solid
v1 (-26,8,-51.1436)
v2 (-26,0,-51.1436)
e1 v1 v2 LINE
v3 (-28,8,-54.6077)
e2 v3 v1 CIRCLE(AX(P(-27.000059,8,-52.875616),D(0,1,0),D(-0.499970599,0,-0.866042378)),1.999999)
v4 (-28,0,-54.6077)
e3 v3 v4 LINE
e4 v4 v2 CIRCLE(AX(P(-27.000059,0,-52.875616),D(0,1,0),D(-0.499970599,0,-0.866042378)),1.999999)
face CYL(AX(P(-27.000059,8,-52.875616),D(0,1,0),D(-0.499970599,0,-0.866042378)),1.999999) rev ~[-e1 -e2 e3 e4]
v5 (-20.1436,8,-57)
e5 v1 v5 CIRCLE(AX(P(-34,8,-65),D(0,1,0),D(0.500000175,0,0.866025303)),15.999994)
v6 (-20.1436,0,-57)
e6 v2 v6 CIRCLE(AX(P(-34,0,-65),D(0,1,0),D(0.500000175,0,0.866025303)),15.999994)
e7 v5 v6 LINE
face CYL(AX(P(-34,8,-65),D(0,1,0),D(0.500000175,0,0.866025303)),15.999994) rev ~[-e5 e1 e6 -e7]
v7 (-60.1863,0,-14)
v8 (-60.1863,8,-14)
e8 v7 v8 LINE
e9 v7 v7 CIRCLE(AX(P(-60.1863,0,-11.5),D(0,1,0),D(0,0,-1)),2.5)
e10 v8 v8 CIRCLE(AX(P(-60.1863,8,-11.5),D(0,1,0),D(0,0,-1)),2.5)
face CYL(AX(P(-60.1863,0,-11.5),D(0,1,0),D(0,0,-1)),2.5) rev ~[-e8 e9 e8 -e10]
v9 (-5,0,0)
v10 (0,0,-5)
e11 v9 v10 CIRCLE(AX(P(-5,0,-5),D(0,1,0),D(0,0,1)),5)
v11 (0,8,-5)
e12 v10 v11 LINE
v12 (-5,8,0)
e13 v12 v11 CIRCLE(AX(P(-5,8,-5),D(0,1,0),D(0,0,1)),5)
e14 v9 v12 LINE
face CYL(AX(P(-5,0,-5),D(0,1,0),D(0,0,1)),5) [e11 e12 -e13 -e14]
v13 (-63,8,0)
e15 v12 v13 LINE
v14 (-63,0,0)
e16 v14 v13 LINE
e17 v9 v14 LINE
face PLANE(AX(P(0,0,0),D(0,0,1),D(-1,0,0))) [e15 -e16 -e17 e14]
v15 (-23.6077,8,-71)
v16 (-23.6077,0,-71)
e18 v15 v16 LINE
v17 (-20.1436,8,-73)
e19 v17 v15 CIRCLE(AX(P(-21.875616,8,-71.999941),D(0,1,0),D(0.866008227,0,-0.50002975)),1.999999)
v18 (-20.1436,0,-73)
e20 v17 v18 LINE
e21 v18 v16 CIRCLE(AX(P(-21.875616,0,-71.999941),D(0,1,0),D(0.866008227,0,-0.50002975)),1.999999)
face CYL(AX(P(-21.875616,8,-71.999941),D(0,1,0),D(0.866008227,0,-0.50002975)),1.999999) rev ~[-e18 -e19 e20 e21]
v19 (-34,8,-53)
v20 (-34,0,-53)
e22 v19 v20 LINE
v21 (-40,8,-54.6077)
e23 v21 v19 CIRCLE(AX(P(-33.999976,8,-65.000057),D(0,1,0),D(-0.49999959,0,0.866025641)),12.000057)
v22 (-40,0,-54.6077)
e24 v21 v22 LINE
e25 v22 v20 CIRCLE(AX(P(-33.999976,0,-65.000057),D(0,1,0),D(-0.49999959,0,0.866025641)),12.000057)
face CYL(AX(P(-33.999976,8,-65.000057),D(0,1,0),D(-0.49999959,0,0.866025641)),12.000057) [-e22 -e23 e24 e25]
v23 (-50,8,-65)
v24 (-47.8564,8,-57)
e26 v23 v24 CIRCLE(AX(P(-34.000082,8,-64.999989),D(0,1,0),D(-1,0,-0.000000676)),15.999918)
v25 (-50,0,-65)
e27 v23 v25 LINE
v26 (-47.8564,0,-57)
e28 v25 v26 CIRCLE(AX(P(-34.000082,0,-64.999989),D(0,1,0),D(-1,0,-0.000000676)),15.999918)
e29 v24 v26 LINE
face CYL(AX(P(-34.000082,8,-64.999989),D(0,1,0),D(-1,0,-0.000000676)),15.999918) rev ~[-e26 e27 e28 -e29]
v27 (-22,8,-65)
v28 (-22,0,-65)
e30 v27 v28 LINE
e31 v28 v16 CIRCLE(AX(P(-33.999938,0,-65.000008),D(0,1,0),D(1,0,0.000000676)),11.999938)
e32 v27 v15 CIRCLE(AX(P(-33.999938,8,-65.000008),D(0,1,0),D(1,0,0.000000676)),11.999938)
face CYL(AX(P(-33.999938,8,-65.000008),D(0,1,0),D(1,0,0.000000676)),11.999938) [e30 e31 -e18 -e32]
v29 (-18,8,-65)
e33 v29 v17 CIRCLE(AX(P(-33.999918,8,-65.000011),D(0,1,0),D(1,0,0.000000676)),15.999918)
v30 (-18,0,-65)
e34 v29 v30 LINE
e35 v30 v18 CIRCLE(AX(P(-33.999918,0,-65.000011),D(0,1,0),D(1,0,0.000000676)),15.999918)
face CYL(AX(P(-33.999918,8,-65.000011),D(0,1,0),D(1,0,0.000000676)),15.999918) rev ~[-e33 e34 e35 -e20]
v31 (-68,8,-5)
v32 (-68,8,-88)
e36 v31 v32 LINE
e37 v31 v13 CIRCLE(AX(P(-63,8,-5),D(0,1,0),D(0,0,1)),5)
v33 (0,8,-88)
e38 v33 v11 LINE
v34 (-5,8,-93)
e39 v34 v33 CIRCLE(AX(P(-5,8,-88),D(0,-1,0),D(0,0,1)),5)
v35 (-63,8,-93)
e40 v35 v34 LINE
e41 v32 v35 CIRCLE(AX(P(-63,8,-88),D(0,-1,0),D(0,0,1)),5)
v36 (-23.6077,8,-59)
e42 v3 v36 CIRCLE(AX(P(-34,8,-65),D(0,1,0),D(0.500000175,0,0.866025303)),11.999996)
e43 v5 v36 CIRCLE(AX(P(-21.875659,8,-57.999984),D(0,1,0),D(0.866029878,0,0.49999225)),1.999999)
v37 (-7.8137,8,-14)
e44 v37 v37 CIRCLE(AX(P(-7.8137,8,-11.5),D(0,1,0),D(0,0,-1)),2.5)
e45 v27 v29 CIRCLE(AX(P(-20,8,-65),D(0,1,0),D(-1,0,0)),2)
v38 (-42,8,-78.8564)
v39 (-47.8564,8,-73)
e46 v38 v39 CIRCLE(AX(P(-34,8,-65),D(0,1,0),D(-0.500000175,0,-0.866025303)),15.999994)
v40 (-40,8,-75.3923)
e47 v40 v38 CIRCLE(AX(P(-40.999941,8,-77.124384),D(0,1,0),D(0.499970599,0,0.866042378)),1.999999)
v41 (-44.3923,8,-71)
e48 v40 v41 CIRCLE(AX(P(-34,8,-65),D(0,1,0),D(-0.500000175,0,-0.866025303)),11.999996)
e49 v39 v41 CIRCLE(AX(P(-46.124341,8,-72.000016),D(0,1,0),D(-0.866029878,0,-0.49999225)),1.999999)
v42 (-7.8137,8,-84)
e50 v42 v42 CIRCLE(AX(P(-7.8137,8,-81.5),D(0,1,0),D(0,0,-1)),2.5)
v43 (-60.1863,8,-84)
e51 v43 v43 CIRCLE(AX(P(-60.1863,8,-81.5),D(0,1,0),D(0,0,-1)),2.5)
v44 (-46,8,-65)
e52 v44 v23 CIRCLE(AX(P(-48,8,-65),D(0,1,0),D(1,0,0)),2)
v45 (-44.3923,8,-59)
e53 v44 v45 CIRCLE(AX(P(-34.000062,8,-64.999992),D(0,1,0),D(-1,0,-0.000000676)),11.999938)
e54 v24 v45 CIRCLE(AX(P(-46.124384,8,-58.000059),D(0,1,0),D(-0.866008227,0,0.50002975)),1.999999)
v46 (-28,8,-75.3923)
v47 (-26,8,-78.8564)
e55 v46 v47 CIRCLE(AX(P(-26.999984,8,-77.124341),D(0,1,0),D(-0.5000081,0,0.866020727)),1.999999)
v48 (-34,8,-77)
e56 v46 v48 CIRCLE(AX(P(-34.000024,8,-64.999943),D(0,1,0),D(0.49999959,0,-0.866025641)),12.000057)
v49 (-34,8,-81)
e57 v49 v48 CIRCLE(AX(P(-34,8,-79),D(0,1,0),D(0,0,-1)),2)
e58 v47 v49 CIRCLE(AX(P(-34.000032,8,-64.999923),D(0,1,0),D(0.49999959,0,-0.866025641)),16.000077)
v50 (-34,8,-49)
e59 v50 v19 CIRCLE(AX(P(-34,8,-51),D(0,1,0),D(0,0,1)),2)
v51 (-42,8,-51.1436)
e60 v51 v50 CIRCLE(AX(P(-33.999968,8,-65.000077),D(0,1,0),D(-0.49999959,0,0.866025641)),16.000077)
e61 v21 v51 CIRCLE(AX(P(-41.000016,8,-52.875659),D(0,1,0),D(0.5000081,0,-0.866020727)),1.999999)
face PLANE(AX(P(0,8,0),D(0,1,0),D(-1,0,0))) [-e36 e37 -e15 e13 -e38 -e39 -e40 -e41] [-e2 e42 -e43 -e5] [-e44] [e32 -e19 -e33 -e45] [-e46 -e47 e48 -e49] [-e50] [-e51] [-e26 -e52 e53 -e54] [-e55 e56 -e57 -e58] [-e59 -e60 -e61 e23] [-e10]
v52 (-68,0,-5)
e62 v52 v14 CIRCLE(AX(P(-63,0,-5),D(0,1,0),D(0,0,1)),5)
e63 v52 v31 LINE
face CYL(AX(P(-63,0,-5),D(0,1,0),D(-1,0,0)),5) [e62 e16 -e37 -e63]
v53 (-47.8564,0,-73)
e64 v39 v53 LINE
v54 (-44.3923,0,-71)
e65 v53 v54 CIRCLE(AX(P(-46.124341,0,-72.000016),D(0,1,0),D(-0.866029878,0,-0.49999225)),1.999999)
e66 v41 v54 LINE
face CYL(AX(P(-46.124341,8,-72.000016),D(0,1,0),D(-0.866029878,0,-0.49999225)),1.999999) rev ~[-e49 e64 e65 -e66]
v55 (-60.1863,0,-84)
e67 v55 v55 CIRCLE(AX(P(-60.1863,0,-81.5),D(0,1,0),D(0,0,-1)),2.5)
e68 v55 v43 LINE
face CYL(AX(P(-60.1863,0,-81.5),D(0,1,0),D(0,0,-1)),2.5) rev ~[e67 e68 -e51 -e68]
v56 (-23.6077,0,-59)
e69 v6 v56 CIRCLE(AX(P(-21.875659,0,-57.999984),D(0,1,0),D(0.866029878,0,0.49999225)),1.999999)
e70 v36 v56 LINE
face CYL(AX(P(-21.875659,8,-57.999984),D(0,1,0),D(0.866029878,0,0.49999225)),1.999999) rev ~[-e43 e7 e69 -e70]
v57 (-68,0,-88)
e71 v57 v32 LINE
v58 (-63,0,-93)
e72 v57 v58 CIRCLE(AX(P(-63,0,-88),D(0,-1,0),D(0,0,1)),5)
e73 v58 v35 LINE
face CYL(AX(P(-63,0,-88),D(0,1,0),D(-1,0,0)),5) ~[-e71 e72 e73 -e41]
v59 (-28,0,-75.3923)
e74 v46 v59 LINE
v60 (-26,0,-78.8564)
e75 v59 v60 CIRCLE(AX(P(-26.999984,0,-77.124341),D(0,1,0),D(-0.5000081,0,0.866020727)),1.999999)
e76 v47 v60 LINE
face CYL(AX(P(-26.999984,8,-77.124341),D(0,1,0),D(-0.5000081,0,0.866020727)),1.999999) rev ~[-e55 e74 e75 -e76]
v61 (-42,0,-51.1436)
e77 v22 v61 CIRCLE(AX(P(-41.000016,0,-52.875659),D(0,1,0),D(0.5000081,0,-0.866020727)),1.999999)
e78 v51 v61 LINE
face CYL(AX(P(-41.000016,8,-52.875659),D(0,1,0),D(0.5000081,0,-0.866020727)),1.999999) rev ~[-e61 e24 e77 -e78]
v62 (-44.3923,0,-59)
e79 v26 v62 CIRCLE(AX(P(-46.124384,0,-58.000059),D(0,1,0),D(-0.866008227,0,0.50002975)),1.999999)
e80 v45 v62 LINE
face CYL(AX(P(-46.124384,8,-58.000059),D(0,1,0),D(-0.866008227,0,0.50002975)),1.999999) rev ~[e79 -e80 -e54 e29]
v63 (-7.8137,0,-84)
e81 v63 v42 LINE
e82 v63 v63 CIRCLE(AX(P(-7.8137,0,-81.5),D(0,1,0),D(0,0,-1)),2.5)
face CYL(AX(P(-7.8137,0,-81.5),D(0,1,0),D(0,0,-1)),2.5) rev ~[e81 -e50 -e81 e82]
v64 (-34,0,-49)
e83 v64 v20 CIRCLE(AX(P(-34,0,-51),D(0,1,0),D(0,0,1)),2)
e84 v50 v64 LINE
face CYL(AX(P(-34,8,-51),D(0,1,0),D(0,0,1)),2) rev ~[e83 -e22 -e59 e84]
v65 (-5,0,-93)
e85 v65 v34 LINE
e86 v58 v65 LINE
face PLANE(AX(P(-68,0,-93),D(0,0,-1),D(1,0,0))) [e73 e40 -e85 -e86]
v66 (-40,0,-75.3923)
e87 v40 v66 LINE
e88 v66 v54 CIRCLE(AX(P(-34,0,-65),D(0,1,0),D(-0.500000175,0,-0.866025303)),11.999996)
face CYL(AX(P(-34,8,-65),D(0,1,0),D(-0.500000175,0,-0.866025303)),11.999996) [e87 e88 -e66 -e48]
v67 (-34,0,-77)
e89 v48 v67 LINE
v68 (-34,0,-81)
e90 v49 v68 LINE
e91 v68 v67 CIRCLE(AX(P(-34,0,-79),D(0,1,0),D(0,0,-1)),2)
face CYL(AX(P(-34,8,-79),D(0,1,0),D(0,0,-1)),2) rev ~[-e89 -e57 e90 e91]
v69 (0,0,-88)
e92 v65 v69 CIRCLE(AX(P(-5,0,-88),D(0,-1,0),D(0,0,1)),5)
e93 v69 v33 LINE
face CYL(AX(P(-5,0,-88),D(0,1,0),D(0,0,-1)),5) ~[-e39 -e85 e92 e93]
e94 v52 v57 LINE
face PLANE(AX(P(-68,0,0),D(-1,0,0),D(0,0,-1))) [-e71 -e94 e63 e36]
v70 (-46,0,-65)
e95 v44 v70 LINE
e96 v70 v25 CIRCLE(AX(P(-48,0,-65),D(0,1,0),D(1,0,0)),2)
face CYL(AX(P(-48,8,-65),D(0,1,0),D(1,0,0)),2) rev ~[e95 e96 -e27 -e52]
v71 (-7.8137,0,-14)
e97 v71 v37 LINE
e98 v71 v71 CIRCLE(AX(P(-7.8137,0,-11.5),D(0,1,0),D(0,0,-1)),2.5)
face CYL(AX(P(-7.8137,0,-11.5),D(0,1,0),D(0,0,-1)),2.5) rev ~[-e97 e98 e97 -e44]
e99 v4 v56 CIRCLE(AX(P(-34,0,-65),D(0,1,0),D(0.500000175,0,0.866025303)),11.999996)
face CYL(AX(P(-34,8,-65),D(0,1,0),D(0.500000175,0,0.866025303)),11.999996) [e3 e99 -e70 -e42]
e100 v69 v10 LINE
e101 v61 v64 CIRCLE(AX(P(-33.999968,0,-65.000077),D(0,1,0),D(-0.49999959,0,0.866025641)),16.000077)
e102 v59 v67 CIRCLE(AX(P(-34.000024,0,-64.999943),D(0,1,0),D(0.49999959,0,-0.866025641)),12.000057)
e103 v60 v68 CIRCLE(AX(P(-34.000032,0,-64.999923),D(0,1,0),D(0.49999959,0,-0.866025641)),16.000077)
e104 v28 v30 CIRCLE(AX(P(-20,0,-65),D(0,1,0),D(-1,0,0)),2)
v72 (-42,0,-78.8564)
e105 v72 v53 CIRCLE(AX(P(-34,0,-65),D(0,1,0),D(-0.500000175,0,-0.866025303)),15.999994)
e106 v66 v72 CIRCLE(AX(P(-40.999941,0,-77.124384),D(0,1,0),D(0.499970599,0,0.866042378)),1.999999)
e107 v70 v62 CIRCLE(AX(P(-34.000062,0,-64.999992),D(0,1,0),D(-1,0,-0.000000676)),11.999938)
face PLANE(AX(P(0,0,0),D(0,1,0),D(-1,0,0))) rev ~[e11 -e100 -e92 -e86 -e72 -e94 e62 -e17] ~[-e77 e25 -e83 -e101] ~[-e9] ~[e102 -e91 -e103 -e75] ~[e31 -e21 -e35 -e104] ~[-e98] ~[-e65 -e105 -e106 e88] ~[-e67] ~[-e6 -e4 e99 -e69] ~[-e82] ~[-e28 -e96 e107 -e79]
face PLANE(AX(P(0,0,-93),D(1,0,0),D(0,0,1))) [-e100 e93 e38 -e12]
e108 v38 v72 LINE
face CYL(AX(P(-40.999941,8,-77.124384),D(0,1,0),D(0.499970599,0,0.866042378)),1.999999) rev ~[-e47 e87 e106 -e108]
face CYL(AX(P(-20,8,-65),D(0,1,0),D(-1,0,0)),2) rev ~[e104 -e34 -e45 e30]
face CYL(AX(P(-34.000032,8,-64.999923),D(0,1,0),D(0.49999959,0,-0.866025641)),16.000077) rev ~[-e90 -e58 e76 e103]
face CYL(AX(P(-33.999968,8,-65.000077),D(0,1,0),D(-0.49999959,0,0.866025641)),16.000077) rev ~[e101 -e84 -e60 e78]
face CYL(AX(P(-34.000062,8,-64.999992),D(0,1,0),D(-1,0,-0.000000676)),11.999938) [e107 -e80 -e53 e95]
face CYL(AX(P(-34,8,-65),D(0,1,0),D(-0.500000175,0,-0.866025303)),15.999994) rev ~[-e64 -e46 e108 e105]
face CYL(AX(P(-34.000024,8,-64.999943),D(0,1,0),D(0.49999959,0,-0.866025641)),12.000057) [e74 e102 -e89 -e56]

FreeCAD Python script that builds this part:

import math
import FreeCAD as App
import Part
import Sketcher

V = App.Vector
Q = App.Units.Quantity


def edges_at(feature, points):
    """Names of the edges that pass closest to the given points."""
    edges = feature.Shape.Edges
    near = lambda p: min(range(len(edges)), key=lambda i: edges[i].distToShape(Part.Vertex(*p))[0])
    return sorted({f"Edge{near(p) + 1}" for p in points})

doc = App.newDocument("Part")
body = doc.addObject("PartDesign::Body", "Body")

# Sketch on XZ plane
sketch1 = body.newObject("Sketcher::SketchObject", "Sketch")
sketch1.AttachmentSupport = (doc.getObject("XZ_Plane"), [""])
sketch1.MapMode = "FlatFace"
sketch1.addGeometry(Part.LineSegment(V(-68, 0, 0), V(0, 0, 0)), False)
sketch1.addGeometry(Part.LineSegment(V(0, 0, 0), V(0, -93, 0)), False)
sketch1.addGeometry(Part.LineSegment(V(0, -93, 0), V(-68, -93, 0)), False)
sketch1.addGeometry(Part.LineSegment(V(-68, -93, 0), V(-68, 0, 0)), False)
sketch1.addConstraint(Sketcher.Constraint("Coincident", 0, 2, 1, 1))
sketch1.addConstraint(Sketcher.Constraint("Coincident", 1, 2, 2, 1))
sketch1.addConstraint(Sketcher.Constraint("Coincident", 2, 2, 3, 1))
sketch1.addConstraint(Sketcher.Constraint("Coincident", 3, 2, 0, 1))
sketch1.addConstraint(Sketcher.Constraint("Horizontal", 0))
sketch1.addConstraint(Sketcher.Constraint("Vertical", 1))
sketch1.addConstraint(Sketcher.Constraint("Horizontal", 2))
sketch1.addConstraint(Sketcher.Constraint("Vertical", 3))
sketch1.addConstraint(Sketcher.Constraint("Coincident", 0, 2, -1, 1))
sketch1.addConstraint(Sketcher.Constraint("DistanceX", 0, 1, 0, 2, Q("68 mm")))
sketch1.addConstraint(Sketcher.Constraint("DistanceY", 1, 2, 1, 1, Q("93 mm")))
pad1 = body.newObject("PartDesign::Pad", "Pad")
pad1.Profile = sketch1
pad1.Length = 8
pad1.Reversed = True
doc.recompute()

fillet = body.newObject("PartDesign::Fillet", "Fillet")
fillet.Base = (pad1, edges_at(pad1, [(0, 4, -93), (-68, 4, -93)]))
fillet.Radius = 5
doc.recompute()

fillet2 = body.newObject("PartDesign::Fillet", "Fillet001")
fillet2.Base = (fillet, edges_at(fillet, [(-68, 4, 0), (0, 4, 0)]))
fillet2.Radius = 5

# Sketch on XZ plane
sketch2 = body.newObject("Sketcher::SketchObject", "Sketch001")
sketch2.AttachmentSupport = (doc.getObject("XZ_Plane"), [""])
sketch2.MapMode = "FlatFace"
sketch2.addGeometry(Part.Circle(V(-7.8, -81.5, 0), V(0, 0, 1), 2.5), False)
sketch2.addGeometry(Part.Circle(V(-60.2, -81.5, 0), V(0, 0, 1), 2.5), False)
sketch2.addGeometry(Part.Circle(V(-60.2, -11.5, 0), V(0, 0, 1), 2.5), False)
sketch2.addGeometry(Part.Circle(V(-7.8, -11.5, 0), V(0, 0, 1), 2.5), False)
sketch2.addConstraint(Sketcher.Constraint("Equal", 0, 1))
sketch2.addConstraint(Sketcher.Constraint("Equal", 1, 2))
sketch2.addConstraint(Sketcher.Constraint("Equal", 2, 3))
sketch2.addConstraint(Sketcher.Constraint("Horizontal", 0, 3, 1, 3))
sketch2.addConstraint(Sketcher.Constraint("Horizontal", 2, 3, 3, 3))
sketch2.addConstraint(Sketcher.Constraint("Vertical", 1, 3, 2, 3))
sketch2.addConstraint(Sketcher.Constraint("Vertical", 0, 3, 3, 3))
sketch2.addConstraint(Sketcher.Constraint("Diameter", 0, Q("5 mm")))
sketch2.addConstraint(Sketcher.Constraint("DistanceY", 1, 3, 2, 3, Q("70 mm")))
sketch2.addConstraint(Sketcher.Constraint("DistanceY", 0, 3, -1, 1, Q("81.5 mm")))
sketch2.addConstraint(Sketcher.Constraint("DistanceX", 0, 3, -1, 1, Q("7.8137 mm")))
sketch2.addConstraint(Sketcher.Constraint("DistanceX", 1, 3, -1, 1, Q("60.1863 mm")))
doc.recompute()
hole = body.newObject("PartDesign::Hole", "Hole")
hole.Profile = sketch2
hole.ThreadType = "None"
hole.Diameter = 5
hole.DepthType = "ThroughAll"

# Sketch on XZ plane
sketch3 = body.newObject("Sketcher::SketchObject", "Sketch002")
sketch3.AttachmentSupport = (doc.getObject("XZ_Plane"), [""])
sketch3.MapMode = "FlatFace"
sketch3.AttachmentOffset = App.Placement(V(0, 0, -8), App.Rotation())
sketch3.addGeometry(Part.ArcOfCircle(Part.Circle(V(-27, -77.1, 0), V(0, 0, 1), 2), math.radians(-60), math.radians(120)), False)
sketch3.addGeometry(Part.ArcOfCircle(Part.Circle(V(-34, -65, 0), V(0, 0, 1), 16), math.radians(-90), math.radians(-60)), False)
sketch3.addGeometry(Part.ArcOfCircle(Part.Circle(V(-34, -79, 0), V(0, 0, 1), 2), math.radians(90), math.radians(270)), False)
sketch3.addGeometry(Part.ArcOfCircle(Part.Circle(V(-34, -65, 0), V(0, 0, 1), 12), math.radians(-90), math.radians(-60)), False)
sketch3.addGeometry(Part.ArcOfCircle(Part.Circle(V(-41, -77.1, 0), V(0, 0, 1), 2), math.radians(-120), math.radians(60)), False)
sketch3.addGeometry(Part.ArcOfCircle(Part.Circle(V(-34, -65, 0), V(0, 0, 1), 16), math.radians(-150), math.radians(-120)), False)
sketch3.addGeometry(Part.ArcOfCircle(Part.Circle(V(-46.1, -72, 0), V(0, 0, 1), 2), math.radians(30), math.radians(210)), False)
sketch3.addGeometry(Part.ArcOfCircle(Part.Circle(V(-34, -65, 0), V(0, 0, 1), 12), math.radians(-150), math.radians(-120)), False)
sketch3.addGeometry(Part.ArcOfCircle(Part.Circle(V(-48, -65, 0), V(0, 0, 1), 2), math.radians(180), math.radians(360)), False)
sketch3.addGeometry(Part.ArcOfCircle(Part.Circle(V(-34, -65, 0), V(0, 0, 1), 16), math.radians(150), math.radians(180)), False)
sketch3.addGeometry(Part.ArcOfCircle(Part.Circle(V(-46.1, -58, 0), V(0, 0, 1), 2), math.radians(-30), math.radians(150)), False)
sketch3.addGeometry(Part.ArcOfCircle(Part.Circle(V(-34, -65, 0), V(0, 0, 1), 12), math.radians(150), math.radians(180)), False)
sketch3.addGeometry(Part.ArcOfCircle(Part.Circle(V(-41, -52.9, 0), V(0, 0, 1), 2), math.radians(120), math.radians(300)), False)
sketch3.addGeometry(Part.ArcOfCircle(Part.Circle(V(-34, -65, 0), V(0, 0, 1), 16), math.radians(90), math.radians(120)), False)
sketch3.addGeometry(Part.ArcOfCircle(Part.Circle(V(-34, -51, 0), V(0, 0, 1), 2), math.radians(-90), math.radians(90)), False)
sketch3.addGeometry(Part.ArcOfCircle(Part.Circle(V(-34, -65, 0), V(0, 0, 1), 12), math.radians(90), math.radians(120)), False)
sketch3.addGeometry(Part.ArcOfCircle(Part.Circle(V(-27, -52.9, 0), V(0, 0, 1), 2), math.radians(60), math.radians(240)), False)
sketch3.addGeometry(Part.ArcOfCircle(Part.Circle(V(-34, -65, 0), V(0, 0, 1), 16), math.radians(30), math.radians(60)), False)
sketch3.addGeometry(Part.ArcOfCircle(Part.Circle(V(-21.9, -58, 0), V(0, 0, 1), 2), math.radians(-150), math.radians(30)), False)
sketch3.addGeometry(Part.ArcOfCircle(Part.Circle(V(-34, -65, 0), V(0, 0, 1), 12), math.radians(30), math.radians(60)), False)
sketch3.addGeometry(Part.ArcOfCircle(Part.Circle(V(-20, -65, 0), V(0, 0, 1), 2), math.radians(0), math.radians(180)), False)
sketch3.addGeometry(Part.ArcOfCircle(Part.Circle(V(-34, -65, 0), V(0, 0, 1), 16), math.radians(-30), math.radians(0)), False)
sketch3.addGeometry(Part.ArcOfCircle(Part.Circle(V(-21.9, -72, 0), V(0, 0, 1), 2), math.radians(150), math.radians(330)), False)
sketch3.addGeometry(Part.ArcOfCircle(Part.Circle(V(-34, -65, 0), V(0, 0, 1), 12), math.radians(-30), math.radians(0)), False)
sketch3.addConstraint(Sketcher.Constraint("Tangent", 0, 1, 1, 2))
sketch3.addConstraint(Sketcher.Constraint("Tangent", 1, 1, 2, 2))
sketch3.addConstraint(Sketcher.Constraint("Tangent", 2, 1, 3, 1))
sketch3.addConstraint(Sketcher.Constraint("Tangent", 3, 2, 0, 2))
sketch3.addConstraint(Sketcher.Constraint("Tangent", 4, 1, 5, 2))
sketch3.addConstraint(Sketcher.Constraint("Tangent", 5, 1, 6, 2))
sketch3.addConstraint(Sketcher.Constraint("Tangent", 6, 1, 7, 1))
sketch3.addConstraint(Sketcher.Constraint("Tangent", 7, 2, 4, 2))
sketch3.addConstraint(Sketcher.Constraint("Tangent", 8, 1, 9, 2))
sketch3.addConstraint(Sketcher.Constraint("Tangent", 9, 1, 10, 2))
sketch3.addConstraint(Sketcher.Constraint("Tangent", 10, 1, 11, 1))
sketch3.addConstraint(Sketcher.Constraint("Tangent", 11, 2, 8, 2))
sketch3.addConstraint(Sketcher.Constraint("Tangent", 12, 1, 13, 2))
sketch3.addConstraint(Sketcher.Constraint("Tangent", 13, 1, 14, 2))
sketch3.addConstraint(Sketcher.Constraint("Tangent", 14, 1, 15, 1))
sketch3.addConstraint(Sketcher.Constraint("Tangent", 15, 2, 12, 2))
sketch3.addConstraint(Sketcher.Constraint("Tangent", 16, 1, 17, 2))
sketch3.addConstraint(Sketcher.Constraint("Tangent", 17, 1, 18, 2))
sketch3.addConstraint(Sketcher.Constraint("Tangent", 18, 1, 19, 1))
sketch3.addConstraint(Sketcher.Constraint("Tangent", 19, 2, 16, 2))
sketch3.addConstraint(Sketcher.Constraint("Tangent", 20, 1, 21, 2))
sketch3.addConstraint(Sketcher.Constraint("Tangent", 21, 1, 22, 2))
sketch3.addConstraint(Sketcher.Constraint("Tangent", 22, 1, 23, 1))
sketch3.addConstraint(Sketcher.Constraint("Tangent", 23, 2, 20, 2))
sketch3.addConstraint(Sketcher.Constraint("Coincident", 3, 3, 1, 3))
sketch3.addConstraint(Sketcher.Constraint("Coincident", 5, 3, 1, 3))
sketch3.addConstraint(Sketcher.Constraint("Coincident", 7, 3, 1, 3))
sketch3.addConstraint(Sketcher.Constraint("Coincident", 9, 3, 1, 3))
sketch3.addConstraint(Sketcher.Constraint("Coincident", 11, 3, 1, 3))
sketch3.addConstraint(Sketcher.Constraint("Coincident", 13, 3, 1, 3))
sketch3.addConstraint(Sketcher.Constraint("Coincident", 15, 3, 1, 3))
sketch3.addConstraint(Sketcher.Constraint("Coincident", 17, 3, 1, 3))
sketch3.addConstraint(Sketcher.Constraint("Coincident", 19, 3, 1, 3))
sketch3.addConstraint(Sketcher.Constraint("Coincident", 21, 3, 1, 3))
sketch3.addConstraint(Sketcher.Constraint("Coincident", 23, 3, 1, 3))
sketch3.addConstraint(Sketcher.Constraint("Equal", 2, 4))
sketch3.addConstraint(Sketcher.Constraint("Equal", 1, 5))
sketch3.addConstraint(Sketcher.Constraint("Equal", 6, 8))
sketch3.addConstraint(Sketcher.Constraint("Equal", 5, 9))
sketch3.addConstraint(Sketcher.Constraint("Equal", 10, 12))
sketch3.addConstraint(Sketcher.Constraint("Equal", 9, 13))
sketch3.addConstraint(Sketcher.Constraint("Equal", 14, 16))
sketch3.addConstraint(Sketcher.Constraint("Equal", 13, 17))
sketch3.addConstraint(Sketcher.Constraint("Equal", 18, 20))
sketch3.addConstraint(Sketcher.Constraint("Equal", 17, 21))
sketch3.addConstraint(Sketcher.Constraint("Horizontal", 0, 3, 4, 3))
sketch3.addConstraint(Sketcher.Constraint("Horizontal", 7, 3, 8, 3))
sketch3.addConstraint(Sketcher.Constraint("Horizontal", 12, 3, 16, 3))
sketch3.addConstraint(Sketcher.Constraint("Horizontal", 10, 3, 18, 3))
sketch3.addConstraint(Sketcher.Constraint("Horizontal", 19, 3, 20, 3))
sketch3.addConstraint(Sketcher.Constraint("Horizontal", 6, 3, 22, 3))
sketch3.addConstraint(Sketcher.Constraint("Vertical", 1, 3, 2, 3))
sketch3.addConstraint(Sketcher.Constraint("Vertical", 6, 3, 10, 3))
sketch3.addConstraint(Sketcher.Constraint("Vertical", 4, 3, 12, 3))
sketch3.addConstraint(Sketcher.Constraint("Vertical", 13, 3, 14, 3))
sketch3.addConstraint(Sketcher.Constraint("Radius", 0, Q("2 mm")))
sketch3.addConstraint(Sketcher.Constraint("DistanceX", 1, 3, -1, 1, Q("34 mm")))
sketch3.addConstraint(Sketcher.Constraint("DistanceX", 3, 2, -1, 1, Q("28 mm")))
sketch3.addConstraint(Sketcher.Constraint("Radius", 1, Q("16 mm")))
sketch3.addConstraint(Sketcher.Constraint("DistanceY", 6, 3, 10, 3, Q("14 mm")))
sketch3.addConstraint(Sketcher.Constraint("DistanceY", 1, 3, -1, 1, Q("65 mm")))
pocket1 = body.newObject("PartDesign::Pocket", "Pocket")
pocket1.Profile = sketch3
pocket1.Type = "ThroughAll"
pocket1.Reversed = True

doc.recompute()
